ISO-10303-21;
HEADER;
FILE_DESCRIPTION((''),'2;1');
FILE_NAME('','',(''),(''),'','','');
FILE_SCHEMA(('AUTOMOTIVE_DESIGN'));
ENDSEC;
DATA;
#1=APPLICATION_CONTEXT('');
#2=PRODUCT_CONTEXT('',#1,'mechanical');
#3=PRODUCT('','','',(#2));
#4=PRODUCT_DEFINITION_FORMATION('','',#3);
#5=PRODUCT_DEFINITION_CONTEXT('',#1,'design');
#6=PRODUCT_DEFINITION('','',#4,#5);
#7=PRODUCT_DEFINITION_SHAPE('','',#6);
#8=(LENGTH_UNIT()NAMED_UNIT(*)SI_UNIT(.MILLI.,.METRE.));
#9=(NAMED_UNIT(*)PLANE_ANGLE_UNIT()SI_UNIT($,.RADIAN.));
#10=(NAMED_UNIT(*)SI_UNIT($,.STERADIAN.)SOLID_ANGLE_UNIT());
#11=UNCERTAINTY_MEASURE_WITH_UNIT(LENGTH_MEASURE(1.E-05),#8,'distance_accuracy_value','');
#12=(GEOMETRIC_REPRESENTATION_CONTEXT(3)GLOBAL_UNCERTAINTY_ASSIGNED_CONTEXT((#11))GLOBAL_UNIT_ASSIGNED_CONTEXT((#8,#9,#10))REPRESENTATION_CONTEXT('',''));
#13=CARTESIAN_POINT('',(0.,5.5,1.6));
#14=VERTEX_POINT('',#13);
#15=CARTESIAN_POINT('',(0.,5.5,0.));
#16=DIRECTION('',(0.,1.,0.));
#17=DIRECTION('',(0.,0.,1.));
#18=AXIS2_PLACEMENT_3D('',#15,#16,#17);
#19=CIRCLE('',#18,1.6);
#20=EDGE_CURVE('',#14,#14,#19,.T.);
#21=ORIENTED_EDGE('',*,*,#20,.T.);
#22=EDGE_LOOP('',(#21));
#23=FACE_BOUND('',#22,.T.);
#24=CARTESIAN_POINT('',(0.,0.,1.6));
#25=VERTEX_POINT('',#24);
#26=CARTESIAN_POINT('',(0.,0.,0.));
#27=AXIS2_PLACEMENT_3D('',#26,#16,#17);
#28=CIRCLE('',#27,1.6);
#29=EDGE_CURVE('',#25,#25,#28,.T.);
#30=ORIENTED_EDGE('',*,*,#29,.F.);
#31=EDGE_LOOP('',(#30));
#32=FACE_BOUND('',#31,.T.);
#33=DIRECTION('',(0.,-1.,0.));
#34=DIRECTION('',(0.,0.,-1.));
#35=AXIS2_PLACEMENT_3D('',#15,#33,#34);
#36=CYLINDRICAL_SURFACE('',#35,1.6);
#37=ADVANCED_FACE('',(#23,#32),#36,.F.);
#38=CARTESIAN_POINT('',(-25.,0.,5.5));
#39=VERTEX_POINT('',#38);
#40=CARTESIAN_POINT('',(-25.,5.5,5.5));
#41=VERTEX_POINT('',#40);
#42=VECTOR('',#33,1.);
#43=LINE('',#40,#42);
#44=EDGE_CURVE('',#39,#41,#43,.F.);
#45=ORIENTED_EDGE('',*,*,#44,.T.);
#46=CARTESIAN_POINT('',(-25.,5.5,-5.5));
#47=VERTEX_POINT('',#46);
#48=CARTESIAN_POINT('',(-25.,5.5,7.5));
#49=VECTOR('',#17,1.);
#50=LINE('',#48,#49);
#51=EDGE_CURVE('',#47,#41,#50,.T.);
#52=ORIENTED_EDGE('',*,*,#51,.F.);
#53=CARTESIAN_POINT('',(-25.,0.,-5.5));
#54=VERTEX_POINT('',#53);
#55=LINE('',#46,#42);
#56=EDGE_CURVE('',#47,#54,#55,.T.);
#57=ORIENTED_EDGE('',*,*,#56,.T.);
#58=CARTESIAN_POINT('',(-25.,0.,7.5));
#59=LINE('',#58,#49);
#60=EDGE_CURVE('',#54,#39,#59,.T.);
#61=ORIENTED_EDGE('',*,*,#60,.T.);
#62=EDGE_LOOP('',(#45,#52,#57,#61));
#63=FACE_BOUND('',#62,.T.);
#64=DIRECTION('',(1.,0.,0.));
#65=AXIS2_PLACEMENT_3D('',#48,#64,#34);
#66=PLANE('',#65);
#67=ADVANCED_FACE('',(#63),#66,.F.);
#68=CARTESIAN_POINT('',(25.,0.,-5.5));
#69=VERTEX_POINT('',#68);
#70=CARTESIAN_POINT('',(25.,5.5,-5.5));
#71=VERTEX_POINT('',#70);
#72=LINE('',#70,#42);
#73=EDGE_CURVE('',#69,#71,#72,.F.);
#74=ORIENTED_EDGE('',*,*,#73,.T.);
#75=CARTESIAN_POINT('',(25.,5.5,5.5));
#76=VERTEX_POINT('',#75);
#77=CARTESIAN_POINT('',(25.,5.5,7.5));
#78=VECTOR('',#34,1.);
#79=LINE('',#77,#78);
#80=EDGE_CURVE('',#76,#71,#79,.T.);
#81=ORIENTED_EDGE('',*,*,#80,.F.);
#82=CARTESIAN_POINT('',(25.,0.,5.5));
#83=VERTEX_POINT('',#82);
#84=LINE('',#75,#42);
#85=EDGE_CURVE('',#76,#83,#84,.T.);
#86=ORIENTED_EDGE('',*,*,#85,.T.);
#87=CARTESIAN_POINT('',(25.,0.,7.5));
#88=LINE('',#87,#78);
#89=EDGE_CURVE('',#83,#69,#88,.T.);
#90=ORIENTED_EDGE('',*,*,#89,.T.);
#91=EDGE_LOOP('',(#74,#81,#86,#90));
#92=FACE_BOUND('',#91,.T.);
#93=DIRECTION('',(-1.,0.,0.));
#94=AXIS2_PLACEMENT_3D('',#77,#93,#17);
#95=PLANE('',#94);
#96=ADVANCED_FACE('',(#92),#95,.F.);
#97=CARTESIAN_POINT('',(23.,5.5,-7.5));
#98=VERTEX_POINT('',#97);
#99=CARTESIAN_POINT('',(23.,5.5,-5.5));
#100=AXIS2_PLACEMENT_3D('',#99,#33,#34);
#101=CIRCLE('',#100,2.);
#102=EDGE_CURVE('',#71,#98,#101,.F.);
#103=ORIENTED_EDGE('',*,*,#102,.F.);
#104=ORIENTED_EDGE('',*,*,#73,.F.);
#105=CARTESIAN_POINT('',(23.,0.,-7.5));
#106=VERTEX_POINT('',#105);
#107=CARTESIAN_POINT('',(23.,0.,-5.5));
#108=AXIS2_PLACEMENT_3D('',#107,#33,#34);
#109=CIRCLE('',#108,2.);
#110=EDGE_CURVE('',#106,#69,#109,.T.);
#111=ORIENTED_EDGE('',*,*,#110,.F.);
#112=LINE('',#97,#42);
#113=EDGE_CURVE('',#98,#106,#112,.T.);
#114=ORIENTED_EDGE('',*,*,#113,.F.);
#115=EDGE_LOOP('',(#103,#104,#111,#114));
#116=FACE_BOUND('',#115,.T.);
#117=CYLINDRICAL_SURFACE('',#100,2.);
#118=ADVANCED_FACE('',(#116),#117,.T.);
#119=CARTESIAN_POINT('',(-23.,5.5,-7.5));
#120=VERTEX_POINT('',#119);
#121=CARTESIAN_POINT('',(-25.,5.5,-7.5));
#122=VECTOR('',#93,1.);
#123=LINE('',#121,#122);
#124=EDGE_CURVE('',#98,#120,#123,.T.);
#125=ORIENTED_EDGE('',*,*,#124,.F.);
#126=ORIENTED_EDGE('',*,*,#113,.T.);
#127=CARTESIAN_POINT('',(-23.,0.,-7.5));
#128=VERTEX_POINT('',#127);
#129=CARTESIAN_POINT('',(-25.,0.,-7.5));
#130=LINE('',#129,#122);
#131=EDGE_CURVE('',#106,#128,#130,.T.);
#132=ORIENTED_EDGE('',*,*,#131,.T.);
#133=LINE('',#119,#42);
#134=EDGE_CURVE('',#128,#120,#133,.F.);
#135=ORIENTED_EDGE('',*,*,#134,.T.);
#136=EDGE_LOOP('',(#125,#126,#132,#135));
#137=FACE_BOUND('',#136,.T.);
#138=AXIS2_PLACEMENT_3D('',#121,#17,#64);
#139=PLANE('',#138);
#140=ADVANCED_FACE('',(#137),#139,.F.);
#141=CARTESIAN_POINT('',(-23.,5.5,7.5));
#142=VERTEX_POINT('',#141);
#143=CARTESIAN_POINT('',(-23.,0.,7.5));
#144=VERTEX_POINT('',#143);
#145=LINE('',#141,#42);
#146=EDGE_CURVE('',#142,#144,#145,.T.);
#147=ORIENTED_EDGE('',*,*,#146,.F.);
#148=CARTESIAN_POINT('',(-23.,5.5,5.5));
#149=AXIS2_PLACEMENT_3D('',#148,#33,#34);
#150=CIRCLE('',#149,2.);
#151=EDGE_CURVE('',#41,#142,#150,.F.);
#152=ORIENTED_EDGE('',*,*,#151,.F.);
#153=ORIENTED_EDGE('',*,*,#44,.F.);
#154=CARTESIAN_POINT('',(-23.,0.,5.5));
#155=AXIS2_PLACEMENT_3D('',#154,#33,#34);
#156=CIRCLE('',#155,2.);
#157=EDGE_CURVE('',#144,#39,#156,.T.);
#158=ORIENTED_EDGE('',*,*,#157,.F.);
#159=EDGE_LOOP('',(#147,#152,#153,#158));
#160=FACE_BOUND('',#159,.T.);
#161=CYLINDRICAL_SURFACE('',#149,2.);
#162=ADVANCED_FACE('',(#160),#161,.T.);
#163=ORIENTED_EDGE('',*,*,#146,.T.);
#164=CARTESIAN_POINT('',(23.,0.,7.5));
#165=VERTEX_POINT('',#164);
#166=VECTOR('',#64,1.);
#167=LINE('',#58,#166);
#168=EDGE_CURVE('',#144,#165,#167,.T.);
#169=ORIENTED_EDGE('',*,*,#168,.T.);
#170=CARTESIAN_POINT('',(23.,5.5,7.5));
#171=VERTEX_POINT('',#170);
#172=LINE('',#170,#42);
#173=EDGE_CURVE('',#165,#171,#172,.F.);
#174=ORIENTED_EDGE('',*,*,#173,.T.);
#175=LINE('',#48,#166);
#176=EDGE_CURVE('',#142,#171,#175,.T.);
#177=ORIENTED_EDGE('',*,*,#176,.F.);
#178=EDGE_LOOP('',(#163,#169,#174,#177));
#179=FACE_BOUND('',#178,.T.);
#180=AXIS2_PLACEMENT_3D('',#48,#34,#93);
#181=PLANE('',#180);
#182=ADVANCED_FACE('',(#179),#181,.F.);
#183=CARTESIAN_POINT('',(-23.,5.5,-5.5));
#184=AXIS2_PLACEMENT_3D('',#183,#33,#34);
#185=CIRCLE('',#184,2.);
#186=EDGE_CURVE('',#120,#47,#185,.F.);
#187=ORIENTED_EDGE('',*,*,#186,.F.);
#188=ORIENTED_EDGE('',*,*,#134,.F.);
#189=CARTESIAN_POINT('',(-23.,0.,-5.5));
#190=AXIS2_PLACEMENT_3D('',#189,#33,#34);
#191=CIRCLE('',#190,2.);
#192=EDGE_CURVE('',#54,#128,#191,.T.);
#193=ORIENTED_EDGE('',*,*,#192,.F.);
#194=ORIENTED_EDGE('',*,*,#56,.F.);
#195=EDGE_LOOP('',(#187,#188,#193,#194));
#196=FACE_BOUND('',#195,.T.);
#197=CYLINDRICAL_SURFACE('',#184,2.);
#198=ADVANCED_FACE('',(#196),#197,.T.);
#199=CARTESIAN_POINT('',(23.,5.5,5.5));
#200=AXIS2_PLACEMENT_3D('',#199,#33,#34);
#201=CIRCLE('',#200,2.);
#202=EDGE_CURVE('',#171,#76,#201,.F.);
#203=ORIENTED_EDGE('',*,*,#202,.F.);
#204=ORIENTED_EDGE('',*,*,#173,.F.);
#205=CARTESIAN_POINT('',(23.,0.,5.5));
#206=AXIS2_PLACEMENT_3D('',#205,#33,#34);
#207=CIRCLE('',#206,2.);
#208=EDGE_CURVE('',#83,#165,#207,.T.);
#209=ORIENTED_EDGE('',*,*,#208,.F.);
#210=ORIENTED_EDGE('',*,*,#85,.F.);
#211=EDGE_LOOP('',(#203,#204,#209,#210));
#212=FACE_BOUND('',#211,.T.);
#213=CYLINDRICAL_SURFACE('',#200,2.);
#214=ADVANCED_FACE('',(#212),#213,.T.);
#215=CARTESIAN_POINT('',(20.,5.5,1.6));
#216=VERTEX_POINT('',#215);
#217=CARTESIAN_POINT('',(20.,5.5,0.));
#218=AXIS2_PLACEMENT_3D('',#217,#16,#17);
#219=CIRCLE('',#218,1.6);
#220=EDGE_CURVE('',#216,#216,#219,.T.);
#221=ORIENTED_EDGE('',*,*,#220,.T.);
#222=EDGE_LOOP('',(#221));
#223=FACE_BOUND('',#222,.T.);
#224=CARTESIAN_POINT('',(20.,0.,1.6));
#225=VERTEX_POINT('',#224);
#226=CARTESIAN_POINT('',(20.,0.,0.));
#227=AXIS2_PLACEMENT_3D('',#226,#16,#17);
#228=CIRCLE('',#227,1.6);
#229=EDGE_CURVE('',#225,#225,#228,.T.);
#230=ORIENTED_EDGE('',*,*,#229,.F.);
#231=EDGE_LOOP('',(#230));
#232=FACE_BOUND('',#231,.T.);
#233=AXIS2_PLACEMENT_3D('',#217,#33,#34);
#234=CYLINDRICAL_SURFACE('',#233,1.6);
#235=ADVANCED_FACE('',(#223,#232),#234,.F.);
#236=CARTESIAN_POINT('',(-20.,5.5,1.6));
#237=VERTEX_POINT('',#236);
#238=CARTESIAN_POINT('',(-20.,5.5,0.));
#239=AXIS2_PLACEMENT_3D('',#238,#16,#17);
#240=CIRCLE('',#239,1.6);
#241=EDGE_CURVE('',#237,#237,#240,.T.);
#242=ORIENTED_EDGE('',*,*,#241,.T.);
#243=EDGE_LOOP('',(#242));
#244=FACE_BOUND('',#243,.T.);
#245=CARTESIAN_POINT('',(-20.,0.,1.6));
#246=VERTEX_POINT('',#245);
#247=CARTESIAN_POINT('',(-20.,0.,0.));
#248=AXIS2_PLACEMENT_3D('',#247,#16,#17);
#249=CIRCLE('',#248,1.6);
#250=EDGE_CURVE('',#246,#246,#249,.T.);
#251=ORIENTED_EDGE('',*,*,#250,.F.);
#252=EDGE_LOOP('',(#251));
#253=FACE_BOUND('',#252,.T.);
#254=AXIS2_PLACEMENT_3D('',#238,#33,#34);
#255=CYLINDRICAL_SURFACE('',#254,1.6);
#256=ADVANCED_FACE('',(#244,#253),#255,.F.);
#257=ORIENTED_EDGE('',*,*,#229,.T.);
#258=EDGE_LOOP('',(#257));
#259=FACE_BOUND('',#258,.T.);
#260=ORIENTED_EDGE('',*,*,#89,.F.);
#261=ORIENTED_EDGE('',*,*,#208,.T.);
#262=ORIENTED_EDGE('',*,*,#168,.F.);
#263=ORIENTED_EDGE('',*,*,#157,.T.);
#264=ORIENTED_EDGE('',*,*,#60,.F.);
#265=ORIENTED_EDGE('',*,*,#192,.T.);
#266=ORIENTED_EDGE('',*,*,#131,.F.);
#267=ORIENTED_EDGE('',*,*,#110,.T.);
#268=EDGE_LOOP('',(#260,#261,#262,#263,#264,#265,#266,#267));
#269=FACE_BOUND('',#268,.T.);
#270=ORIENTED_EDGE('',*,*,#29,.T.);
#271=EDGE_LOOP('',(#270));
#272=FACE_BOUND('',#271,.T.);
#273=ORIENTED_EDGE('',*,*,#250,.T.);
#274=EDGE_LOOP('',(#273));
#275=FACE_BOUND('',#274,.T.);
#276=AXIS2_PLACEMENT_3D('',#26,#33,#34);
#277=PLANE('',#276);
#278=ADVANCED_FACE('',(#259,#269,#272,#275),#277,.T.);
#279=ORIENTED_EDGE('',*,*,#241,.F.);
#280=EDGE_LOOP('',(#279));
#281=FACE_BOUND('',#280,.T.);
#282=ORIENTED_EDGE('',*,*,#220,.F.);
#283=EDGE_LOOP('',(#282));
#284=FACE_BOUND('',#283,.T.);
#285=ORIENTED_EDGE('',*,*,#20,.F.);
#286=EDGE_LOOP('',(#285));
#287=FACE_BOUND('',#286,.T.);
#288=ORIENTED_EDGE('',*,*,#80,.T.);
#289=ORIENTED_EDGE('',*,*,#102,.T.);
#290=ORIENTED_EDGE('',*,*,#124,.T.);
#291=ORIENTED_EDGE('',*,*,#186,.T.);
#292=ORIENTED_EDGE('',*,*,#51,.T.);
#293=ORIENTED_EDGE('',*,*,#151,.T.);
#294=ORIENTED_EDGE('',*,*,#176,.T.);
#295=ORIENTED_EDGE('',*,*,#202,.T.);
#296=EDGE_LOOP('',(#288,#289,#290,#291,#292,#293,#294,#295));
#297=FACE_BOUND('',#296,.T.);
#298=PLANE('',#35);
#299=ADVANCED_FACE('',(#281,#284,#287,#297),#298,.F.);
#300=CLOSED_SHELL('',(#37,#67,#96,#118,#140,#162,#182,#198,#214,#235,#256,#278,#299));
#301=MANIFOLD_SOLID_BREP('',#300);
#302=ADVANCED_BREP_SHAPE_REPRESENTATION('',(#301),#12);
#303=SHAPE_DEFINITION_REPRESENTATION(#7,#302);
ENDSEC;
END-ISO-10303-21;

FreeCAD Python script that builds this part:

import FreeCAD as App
import Part
import Sketcher
Q = App.Units.Quantity


def edges_at(feature, points):
    """Names of the edges that pass closest to the given points."""
    edges = feature.Shape.Edges
    near = lambda p: min(range(len(edges)), key=lambda i: edges[i].distToShape(Part.Vertex(*p))[0])
    return sorted({f"Edge{near(p) + 1}" for p in points})


def add_polygon(sketch, points):
    """Adds a closed chain of lines whose ends are joined by coincident constraints."""
    first, n = sketch.GeometryCount, len(points)
    for a, b in zip(points, points[1:] + points[:1]):
        sketch.addGeometry(Part.LineSegment(App.Vector(*a, 0), App.Vector(*b, 0)), False)
    for i in range(n):
        sketch.addConstraint(Sketcher.Constraint("Coincident", first + i, 2, first + (i + 1) % n, 1))

doc = App.newDocument("Part")
params = doc.addObject("Spreadsheet::Sheet", "Params")
for row, (alias, value) in enumerate([
    ("sketch1_diameter", "3.2 mm"),
    ("sketch1_width", "50 mm"),
    ("sketch1_height", "15 mm"),
    ("pad1_length", "5.5 mm"),
    ("fillet_radius", "2 mm"),
], start=1):
    params.set(f"A{row}", alias)
    params.set(f"B{row}", "=" + value)
    params.setAlias(f"B{row}", alias)

body = doc.addObject("PartDesign::Body", "Body")

sketch1 = doc.addObject("Sketcher::SketchObject", "Sketch")
body.addObject(sketch1)
sketch1.AttachmentSupport = (doc.XZ_Plane, [""])
sketch1.MapMode = "FlatFace"
add_polygon(sketch1, [(-25, -7.5), (-25, 7.5), (25, 7.5), (25, -7.5)])
sketch1.addGeometry(Part.Circle(App.Vector(-20, 0, 0), App.Vector(0, 0, 1), 1.6), False)
sketch1.addGeometry(Part.Circle(App.Vector(0, 0, 0), App.Vector(0, 0, 1), 1.6), False)
sketch1.addGeometry(Part.Circle(App.Vector(20, 0, 0), App.Vector(0, 0, 1), 1.6), False)
sketch1.addConstraint(Sketcher.Constraint("Vertical", 0))
sketch1.addConstraint(Sketcher.Constraint("Horizontal", 1))
sketch1.addConstraint(Sketcher.Constraint("Vertical", 2))
sketch1.addConstraint(Sketcher.Constraint("Horizontal", 3))
sketch1.addConstraint(Sketcher.Constraint("Coincident", 5, 3, -1, 1))
sketch1.addConstraint(Sketcher.Constraint("Equal", 4, 5))
sketch1.addConstraint(Sketcher.Constraint("Equal", 5, 6))
sketch1.addConstraint(Sketcher.Constraint("Symmetric", 4, 3, 6, 3, -1, 1))
sketch1.addConstraint(Sketcher.Constraint("Symmetric", 0, 2, 2, 2, -1, 1))
sketch1.addConstraint(Sketcher.Constraint("PointOnObject", 4, 3, -1))
sketch1.addConstraint(Sketcher.Constraint("Diameter", 4, Q("3.2 mm")))
sketch1.addConstraint(Sketcher.Constraint("DistanceX", 1, 1, 1, 2, Q("50 mm")))
sketch1.addConstraint(Sketcher.Constraint("DistanceY", 0, 1, 0, 2, Q("15 mm")))
sketch1.addConstraint(Sketcher.Constraint("DistanceX", 4, 3, -1, 1, Q("20 mm")))
sketch1.setExpression("Constraints[14]", "Params.sketch1_diameter")
sketch1.setExpression("Constraints[15]", "Params.sketch1_width")
sketch1.setExpression("Constraints[16]", "Params.sketch1_height")
pad1 = doc.addObject("PartDesign::Pad", "Pad")
body.addObject(pad1)
pad1.Profile = sketch1
pad1.setExpression("Length", "Params.pad1_length")
pad1.Reversed = True
doc.recompute()

fillet = doc.addObject("PartDesign::Fillet", "Fillet")
body.addObject(fillet)
fillet.Base = (pad1, edges_at(pad1, [
    (25, 2.75, 7.5),
    (-25, 2.75, 7.5),
    (-25, 2.75, -7.5),
    (25, 2.75, -7.5),
]))
fillet.setExpression("Radius", "Params.fillet_radius")

doc.recompute()
